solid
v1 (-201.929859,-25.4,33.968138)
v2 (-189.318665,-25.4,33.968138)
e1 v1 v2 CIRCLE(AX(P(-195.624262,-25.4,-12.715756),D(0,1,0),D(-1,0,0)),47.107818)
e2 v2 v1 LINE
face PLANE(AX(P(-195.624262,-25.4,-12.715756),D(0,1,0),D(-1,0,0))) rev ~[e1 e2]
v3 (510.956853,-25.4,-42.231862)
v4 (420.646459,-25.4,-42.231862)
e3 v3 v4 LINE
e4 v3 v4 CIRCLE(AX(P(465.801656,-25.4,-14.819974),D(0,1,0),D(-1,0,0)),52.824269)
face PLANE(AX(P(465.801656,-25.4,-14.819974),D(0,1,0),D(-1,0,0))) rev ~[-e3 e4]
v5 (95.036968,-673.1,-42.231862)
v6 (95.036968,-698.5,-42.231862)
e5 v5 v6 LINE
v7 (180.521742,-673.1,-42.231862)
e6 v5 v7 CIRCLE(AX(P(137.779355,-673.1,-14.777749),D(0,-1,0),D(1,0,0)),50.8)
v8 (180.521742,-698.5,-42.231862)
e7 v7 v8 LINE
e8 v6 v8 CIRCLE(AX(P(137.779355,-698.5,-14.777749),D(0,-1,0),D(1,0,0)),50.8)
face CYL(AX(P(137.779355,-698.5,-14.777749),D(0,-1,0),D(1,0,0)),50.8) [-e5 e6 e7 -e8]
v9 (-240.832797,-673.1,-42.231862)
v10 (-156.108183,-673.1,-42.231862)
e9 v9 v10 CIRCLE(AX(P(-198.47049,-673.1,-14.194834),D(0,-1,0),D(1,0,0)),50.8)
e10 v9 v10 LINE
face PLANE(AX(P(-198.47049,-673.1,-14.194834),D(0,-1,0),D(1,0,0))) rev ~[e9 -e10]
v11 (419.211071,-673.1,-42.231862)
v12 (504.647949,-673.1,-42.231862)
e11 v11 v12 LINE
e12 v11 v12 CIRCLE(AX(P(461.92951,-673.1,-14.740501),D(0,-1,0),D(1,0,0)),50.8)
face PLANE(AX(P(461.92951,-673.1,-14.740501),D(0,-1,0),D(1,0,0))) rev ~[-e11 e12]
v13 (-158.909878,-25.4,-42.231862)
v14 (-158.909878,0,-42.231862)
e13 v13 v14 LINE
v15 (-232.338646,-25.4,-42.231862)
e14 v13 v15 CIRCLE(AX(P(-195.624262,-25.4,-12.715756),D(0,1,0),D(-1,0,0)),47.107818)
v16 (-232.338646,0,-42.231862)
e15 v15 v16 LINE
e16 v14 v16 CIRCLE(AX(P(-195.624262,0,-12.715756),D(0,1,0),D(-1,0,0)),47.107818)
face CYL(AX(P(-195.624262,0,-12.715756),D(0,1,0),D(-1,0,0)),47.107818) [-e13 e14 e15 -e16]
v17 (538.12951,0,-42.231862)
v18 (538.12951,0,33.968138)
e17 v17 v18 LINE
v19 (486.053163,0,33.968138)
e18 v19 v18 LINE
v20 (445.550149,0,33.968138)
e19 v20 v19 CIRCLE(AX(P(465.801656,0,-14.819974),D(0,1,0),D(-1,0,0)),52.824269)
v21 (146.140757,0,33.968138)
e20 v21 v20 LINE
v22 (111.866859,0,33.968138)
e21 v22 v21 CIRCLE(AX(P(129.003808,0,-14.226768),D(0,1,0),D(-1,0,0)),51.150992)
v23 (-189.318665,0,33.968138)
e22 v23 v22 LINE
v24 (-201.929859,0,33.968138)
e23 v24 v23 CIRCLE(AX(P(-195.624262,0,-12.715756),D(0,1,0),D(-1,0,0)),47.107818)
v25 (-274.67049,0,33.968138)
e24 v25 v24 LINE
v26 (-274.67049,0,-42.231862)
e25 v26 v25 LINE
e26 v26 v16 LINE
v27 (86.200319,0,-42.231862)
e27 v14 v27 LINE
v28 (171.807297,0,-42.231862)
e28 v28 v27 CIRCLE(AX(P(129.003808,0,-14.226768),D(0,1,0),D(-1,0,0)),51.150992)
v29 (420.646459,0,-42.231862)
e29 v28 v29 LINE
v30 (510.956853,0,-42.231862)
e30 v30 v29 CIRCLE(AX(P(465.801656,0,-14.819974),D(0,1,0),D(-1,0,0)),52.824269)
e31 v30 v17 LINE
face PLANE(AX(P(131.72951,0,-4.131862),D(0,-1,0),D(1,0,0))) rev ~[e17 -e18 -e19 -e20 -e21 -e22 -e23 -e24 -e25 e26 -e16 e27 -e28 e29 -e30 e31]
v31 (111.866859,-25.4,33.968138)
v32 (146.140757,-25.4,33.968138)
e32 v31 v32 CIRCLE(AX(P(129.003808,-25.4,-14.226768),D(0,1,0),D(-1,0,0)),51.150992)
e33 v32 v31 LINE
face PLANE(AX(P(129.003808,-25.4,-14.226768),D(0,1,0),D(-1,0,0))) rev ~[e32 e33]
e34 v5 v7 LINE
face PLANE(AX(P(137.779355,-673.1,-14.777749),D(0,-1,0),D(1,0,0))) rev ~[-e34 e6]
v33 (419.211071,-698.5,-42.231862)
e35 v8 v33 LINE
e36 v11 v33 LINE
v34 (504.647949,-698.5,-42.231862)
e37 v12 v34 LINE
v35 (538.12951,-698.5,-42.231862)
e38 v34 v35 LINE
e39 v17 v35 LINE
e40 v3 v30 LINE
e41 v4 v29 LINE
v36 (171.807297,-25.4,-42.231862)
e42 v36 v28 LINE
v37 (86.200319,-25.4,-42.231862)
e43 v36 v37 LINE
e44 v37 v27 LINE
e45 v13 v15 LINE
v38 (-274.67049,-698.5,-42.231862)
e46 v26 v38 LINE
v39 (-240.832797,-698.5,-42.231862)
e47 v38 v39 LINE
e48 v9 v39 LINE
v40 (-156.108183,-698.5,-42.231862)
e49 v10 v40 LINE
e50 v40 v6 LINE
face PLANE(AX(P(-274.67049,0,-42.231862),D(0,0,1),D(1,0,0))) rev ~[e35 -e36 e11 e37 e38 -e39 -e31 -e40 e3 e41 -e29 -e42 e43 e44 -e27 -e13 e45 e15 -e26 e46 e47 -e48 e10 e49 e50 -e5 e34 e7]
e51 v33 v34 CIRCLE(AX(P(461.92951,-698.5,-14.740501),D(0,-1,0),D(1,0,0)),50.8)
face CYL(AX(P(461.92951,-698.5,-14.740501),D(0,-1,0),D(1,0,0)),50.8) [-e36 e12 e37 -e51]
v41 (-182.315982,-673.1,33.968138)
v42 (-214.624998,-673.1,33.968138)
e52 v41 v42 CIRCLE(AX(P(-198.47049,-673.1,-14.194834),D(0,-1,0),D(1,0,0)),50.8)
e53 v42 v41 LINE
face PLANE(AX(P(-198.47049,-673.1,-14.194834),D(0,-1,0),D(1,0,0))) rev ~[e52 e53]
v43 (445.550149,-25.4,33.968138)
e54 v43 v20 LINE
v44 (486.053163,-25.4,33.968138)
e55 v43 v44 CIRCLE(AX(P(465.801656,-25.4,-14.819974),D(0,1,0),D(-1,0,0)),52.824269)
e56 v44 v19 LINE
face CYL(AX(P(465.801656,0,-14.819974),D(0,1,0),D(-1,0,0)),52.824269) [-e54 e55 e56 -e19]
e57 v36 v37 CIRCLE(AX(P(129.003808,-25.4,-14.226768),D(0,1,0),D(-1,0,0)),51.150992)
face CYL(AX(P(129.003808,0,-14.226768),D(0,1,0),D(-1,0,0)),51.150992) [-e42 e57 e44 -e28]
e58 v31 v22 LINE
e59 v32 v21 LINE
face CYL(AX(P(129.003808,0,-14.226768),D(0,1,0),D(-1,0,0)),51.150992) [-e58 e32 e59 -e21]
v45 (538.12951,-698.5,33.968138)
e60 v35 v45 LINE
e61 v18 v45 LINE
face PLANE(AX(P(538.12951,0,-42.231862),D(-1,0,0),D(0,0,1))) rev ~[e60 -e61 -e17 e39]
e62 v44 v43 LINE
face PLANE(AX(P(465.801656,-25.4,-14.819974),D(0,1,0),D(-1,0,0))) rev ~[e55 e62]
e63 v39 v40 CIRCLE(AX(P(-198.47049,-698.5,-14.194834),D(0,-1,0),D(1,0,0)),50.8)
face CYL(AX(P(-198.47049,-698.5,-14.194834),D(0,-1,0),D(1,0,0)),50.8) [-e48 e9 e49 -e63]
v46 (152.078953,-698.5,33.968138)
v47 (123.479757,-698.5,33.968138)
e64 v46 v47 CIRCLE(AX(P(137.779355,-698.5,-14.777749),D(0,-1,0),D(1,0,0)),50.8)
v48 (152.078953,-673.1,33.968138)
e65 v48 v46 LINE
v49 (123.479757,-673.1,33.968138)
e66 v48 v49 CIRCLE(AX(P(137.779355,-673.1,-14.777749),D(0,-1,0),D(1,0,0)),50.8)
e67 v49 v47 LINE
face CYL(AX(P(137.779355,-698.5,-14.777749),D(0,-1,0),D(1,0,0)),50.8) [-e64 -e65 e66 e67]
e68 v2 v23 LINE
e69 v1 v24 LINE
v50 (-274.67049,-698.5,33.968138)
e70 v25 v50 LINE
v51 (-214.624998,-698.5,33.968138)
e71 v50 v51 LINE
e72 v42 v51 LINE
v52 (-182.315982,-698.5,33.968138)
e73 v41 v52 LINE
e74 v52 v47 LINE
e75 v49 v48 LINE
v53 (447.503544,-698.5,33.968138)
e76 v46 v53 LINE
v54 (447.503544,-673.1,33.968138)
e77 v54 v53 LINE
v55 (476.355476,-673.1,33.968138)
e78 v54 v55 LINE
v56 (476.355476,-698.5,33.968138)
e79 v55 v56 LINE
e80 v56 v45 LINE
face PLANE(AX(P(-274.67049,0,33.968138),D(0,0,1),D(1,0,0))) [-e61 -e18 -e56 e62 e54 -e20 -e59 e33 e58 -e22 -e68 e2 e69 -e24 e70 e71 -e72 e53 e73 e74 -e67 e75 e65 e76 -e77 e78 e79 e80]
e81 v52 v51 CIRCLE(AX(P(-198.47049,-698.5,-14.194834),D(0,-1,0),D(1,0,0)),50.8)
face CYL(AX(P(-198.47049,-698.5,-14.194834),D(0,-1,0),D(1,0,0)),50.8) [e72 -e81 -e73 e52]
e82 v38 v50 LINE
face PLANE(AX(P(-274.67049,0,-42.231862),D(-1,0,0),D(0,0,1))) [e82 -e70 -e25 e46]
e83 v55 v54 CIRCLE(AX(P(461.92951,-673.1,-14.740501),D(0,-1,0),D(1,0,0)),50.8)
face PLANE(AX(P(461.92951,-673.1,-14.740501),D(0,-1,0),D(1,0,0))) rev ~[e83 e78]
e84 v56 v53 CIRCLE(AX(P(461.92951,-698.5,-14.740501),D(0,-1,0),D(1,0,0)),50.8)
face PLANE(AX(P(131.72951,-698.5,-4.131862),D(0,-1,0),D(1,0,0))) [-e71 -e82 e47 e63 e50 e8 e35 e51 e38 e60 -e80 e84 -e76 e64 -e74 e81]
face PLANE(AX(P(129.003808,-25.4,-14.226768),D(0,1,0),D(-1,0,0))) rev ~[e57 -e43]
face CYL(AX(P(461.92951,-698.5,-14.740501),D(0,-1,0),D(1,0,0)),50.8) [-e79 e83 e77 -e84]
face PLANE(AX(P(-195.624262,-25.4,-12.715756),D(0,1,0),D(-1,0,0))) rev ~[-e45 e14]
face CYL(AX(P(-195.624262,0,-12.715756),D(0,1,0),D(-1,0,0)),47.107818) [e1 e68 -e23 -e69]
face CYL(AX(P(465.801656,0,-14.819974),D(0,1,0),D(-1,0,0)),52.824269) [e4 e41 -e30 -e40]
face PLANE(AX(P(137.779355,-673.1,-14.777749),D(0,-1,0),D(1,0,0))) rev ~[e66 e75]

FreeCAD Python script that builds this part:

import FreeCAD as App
import Part
import Sketcher
from FreeCAD import Vector
Q = App.Units.Quantity

doc = App.newDocument("Part")
body = doc.addObject("PartDesign::Body", "Body")

sketch1 = body.newObject("Sketcher::SketchObject", "Sketch")
sketch1.AttachmentSupport = (doc.getObject("XZ_Plane"), [""])
sketch1.MapMode = "FlatFace"
sketch1.addGeometry(Part.LineSegment(Vector(-274.67049, 33.968138, 0), Vector(-274.67049, -42.231862, 0)), False)
sketch1.addGeometry(Part.LineSegment(Vector(-274.67049, -42.231862, 0), Vector(538.12951, -42.231862, 0)), False)
sketch1.addGeometry(Part.LineSegment(Vector(538.12951, -42.231862, 0), Vector(538.12951, 33.968138, 0)), False)
sketch1.addGeometry(Part.LineSegment(Vector(538.12951, 33.968138, 0), Vector(-274.67049, 33.968138, 0)), False)
sketch1.addConstraint(Sketcher.Constraint("Coincident", 0, 2, 1, 1))
sketch1.addConstraint(Sketcher.Constraint("Coincident", 1, 2, 2, 1))
sketch1.addConstraint(Sketcher.Constraint("Coincident", 2, 2, 3, 1))
sketch1.addConstraint(Sketcher.Constraint("Coincident", 3, 2, 0, 1))
sketch1.addConstraint(Sketcher.Constraint("Vertical", 0))
sketch1.addConstraint(Sketcher.Constraint("Horizontal", 1))
sketch1.addConstraint(Sketcher.Constraint("Vertical", 2))
sketch1.addConstraint(Sketcher.Constraint("Horizontal", 3))
sketch1.addConstraint(Sketcher.Constraint("DistanceX", 1, 1, 1, 2, Q("32 in")))
sketch1.addConstraint(Sketcher.Constraint("DistanceY", 0, 2, 0, 1, Q("3 in")))
sketch1.addConstraint(Sketcher.Constraint("DistanceX", 0, 2, -1, 1, Q("274.67049 mm")))
sketch1.addConstraint(Sketcher.Constraint("DistanceY", -1, 1, 2, 2, Q("33.968138 mm")))
pad1 = body.newObject("PartDesign::Pad", "Pad")
pad1.Profile = sketch1
pad1.Length = Q("27.5 in")

sketch2 = body.newObject("Sketcher::SketchObject", "Sketch001")
sketch2.AttachmentSupport = (doc.getObject("XZ_Plane"), [""])
sketch2.MapMode = "FlatFace"
sketch2.AttachmentOffset = App.Placement(Vector(0, 0, 27.5 * 25.4), App.Rotation())
sketch2.addGeometry(Part.Circle(Vector(461.92951, -14.740501, 0), Vector(0, 0, 1), 50.8), False)
sketch2.addGeometry(Part.Circle(Vector(137.779355, -14.777749, 0), Vector(0, 0, 1), 50.8), False)
sketch2.addGeometry(Part.Circle(Vector(-198.47049, -14.194834, 0), Vector(0, 0, 1), 50.8), False)
sketch2.addConstraint(Sketcher.Constraint("Equal", 0, 1))
sketch2.addConstraint(Sketcher.Constraint("Equal", 1, 2))
sketch2.addConstraint(Sketcher.Constraint("Diameter", 0, Q("4 in")))
sketch2.addConstraint(Sketcher.Constraint("DistanceX", 2, 3, 0, 3, Q("26 in")))
sketch2.addConstraint(Sketcher.Constraint("DistanceY", 0, 3, -1, 1, Q("14.740501 mm")))
sketch2.addConstraint(Sketcher.Constraint("DistanceX", -1, 1, 0, 3, Q("461.92951 mm")))
sketch2.addConstraint(Sketcher.Constraint("DistanceY", 1, 3, -1, 1, Q("14.777749 mm")))
sketch2.addConstraint(Sketcher.Constraint("DistanceX", -1, 1, 1, 3, Q("137.779355 mm")))
sketch2.addConstraint(Sketcher.Constraint("DistanceY", 2, 3, -1, 1, Q("14.194834 mm")))
pad2 = body.newObject("PartDesign::Pad", "Pad001")
pad2.Profile = sketch2
pad2.Length = Q("1 in")
pad2.Reversed = True

sketch3 = body.newObject("Sketcher::SketchObject", "Sketch002")
sketch3.AttachmentSupport = (doc.getObject("XZ_Plane"), [""])
sketch3.MapMode = "FlatFace"
sketch3.addGeometry(Part.Circle(Vector(465.801656, -14.819974, 0), Vector(0, 0, 1), 52.824269), False)
sketch3.addGeometry(Part.Circle(Vector(129.003808, -14.226768, 0), Vector(0, 0, 1), 51.150992), False)
sketch3.addGeometry(Part.Circle(Vector(-195.624262, -12.715756, 0), Vector(0, 0, 1), 47.107818), False)
sketch3.addConstraint(Sketcher.Constraint("Diameter", 0, Q("105.648538 mm")))
sketch3.addConstraint(Sketcher.Constraint("Diameter", 1, Q("102.301984 mm")))
sketch3.addConstraint(Sketcher.Constraint("Diameter", 2, Q("94.215636 mm")))
sketch3.addConstraint(Sketcher.Constraint("DistanceX", -1, 1, 1, 3, Q("129.003808 mm")))
sketch3.addConstraint(Sketcher.Constraint("DistanceX", 2, 3, -1, 1, Q("195.624262 mm")))
sketch3.addConstraint(Sketcher.Constraint("DistanceX", 1, 3, 0, 3, Q("336.797848 mm")))
sketch3.addConstraint(Sketcher.Constraint("DistanceY", 1, 3, 2, 3, Q("1.511012 mm")))
sketch3.addConstraint(Sketcher.Constraint("DistanceY", 0, 3, -1, 1, Q("14.819974 mm")))
sketch3.addConstraint(Sketcher.Constraint("DistanceY", 1, 3, -1, 1, Q("14.226768 mm")))
pad3 = body.newObject("PartDesign::Pad", "Pad002")
pad3.Profile = sketch3
pad3.Length = Q("1 in")

doc.recompute()
